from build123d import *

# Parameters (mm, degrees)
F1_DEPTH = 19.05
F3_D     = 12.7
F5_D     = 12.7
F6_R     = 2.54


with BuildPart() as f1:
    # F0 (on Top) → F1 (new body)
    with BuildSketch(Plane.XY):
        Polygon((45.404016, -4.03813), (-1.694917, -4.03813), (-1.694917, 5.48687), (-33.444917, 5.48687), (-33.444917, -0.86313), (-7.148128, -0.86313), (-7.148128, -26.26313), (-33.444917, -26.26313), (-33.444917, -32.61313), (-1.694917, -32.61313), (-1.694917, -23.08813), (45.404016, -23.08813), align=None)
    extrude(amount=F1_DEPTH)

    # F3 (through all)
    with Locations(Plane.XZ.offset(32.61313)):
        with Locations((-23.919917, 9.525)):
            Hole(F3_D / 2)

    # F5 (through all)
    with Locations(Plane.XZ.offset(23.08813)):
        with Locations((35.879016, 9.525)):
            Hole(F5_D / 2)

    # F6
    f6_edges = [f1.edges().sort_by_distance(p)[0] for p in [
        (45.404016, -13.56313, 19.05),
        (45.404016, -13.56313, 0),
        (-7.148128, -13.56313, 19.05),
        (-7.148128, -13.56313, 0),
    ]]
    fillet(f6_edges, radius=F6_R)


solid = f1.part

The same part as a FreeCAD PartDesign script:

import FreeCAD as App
import Part
import Sketcher

V = App.Vector
Q = App.Units.Quantity


def edges_at(feature, points):
    """Names of the edges that pass closest to the given points."""
    edges = feature.Shape.Edges
    near = lambda p: min(range(len(edges)), key=lambda i: edges[i].distToShape(Part.Vertex(*p))[0])
    return sorted({f"Edge{near(p) + 1}" for p in points})

doc = App.newDocument("Part")
body = doc.addObject("PartDesign::Body", "Body")

# Sketch on XY plane
sketch1 = doc.addObject("Sketcher::SketchObject", "Sketch")
body.addObject(sketch1)
sketch1.AttachmentSupport = (doc.XY_Plane, [""])
sketch1.MapMode = "FlatFace"
sketch1.addGeometry(Part.LineSegment(V(45, -4, 0), V(-2, -4, 0)), False)
sketch1.addGeometry(Part.LineSegment(V(-2, -4, 0), V(-2, 5, 0)), False)
sketch1.addGeometry(Part.LineSegment(V(-2, 5, 0), V(-33, 5, 0)), False)
sketch1.addGeometry(Part.LineSegment(V(-33, 5, 0), V(-33, -1, 0)), False)
sketch1.addGeometry(Part.LineSegment(V(-33, -1, 0), V(-7, -1, 0)), False)
sketch1.addGeometry(Part.LineSegment(V(-7, -1, 0), V(-7, -26, 0)), False)
sketch1.addGeometry(Part.LineSegment(V(-7, -26, 0), V(-33, -26, 0)), False)
sketch1.addGeometry(Part.LineSegment(V(-33, -26, 0), V(-33, -33, 0)), False)
sketch1.addGeometry(Part.LineSegment(V(-33, -33, 0), V(-2, -33, 0)), False)
sketch1.addGeometry(Part.LineSegment(V(-2, -33, 0), V(-2, -23, 0)), False)
sketch1.addGeometry(Part.LineSegment(V(-2, -23, 0), V(45, -23, 0)), False)
sketch1.addGeometry(Part.LineSegment(V(45, -23, 0), V(45, -4, 0)), False)
sketch1.addConstraint(Sketcher.Constraint("Coincident", 0, 2, 1, 1))
sketch1.addConstraint(Sketcher.Constraint("Coincident", 1, 2, 2, 1))
sketch1.addConstraint(Sketcher.Constraint("Coincident", 2, 2, 3, 1))
sketch1.addConstraint(Sketcher.Constraint("Coincident", 3, 2, 4, 1))
sketch1.addConstraint(Sketcher.Constraint("Coincident", 4, 2, 5, 1))
sketch1.addConstraint(Sketcher.Constraint("Coincident", 5, 2, 6, 1))
sketch1.addConstraint(Sketcher.Constraint("Coincident", 6, 2, 7, 1))
sketch1.addConstraint(Sketcher.Constraint("Coincident", 7, 2, 8, 1))
sketch1.addConstraint(Sketcher.Constraint("Coincident", 8, 2, 9, 1))
sketch1.addConstraint(Sketcher.Constraint("Coincident", 9, 2, 10, 1))
sketch1.addConstraint(Sketcher.Constraint("Coincident", 10, 2, 11, 1))
sketch1.addConstraint(Sketcher.Constraint("Coincident", 11, 2, 0, 1))
sketch1.addConstraint(Sketcher.Constraint("Horizontal", 0))
sketch1.addConstraint(Sketcher.Constraint("Vertical", 1))
sketch1.addConstraint(Sketcher.Constraint("Horizontal", 2))
sketch1.addConstraint(Sketcher.Constraint("Vertical", 3))
sketch1.addConstraint(Sketcher.Constraint("Horizontal", 4))
sketch1.addConstraint(Sketcher.Constraint("Vertical", 5))
sketch1.addConstraint(Sketcher.Constraint("Horizontal", 6))
sketch1.addConstraint(Sketcher.Constraint("Vertical", 7))
sketch1.addConstraint(Sketcher.Constraint("Horizontal", 8))
sketch1.addConstraint(Sketcher.Constraint("Vertical", 9))
sketch1.addConstraint(Sketcher.Constraint("Horizontal", 10))
sketch1.addConstraint(Sketcher.Constraint("Vertical", 11))
sketch1.addConstraint(Sketcher.Constraint("Vertical", 3, 2, 6, 2))
sketch1.addConstraint(Sketcher.Constraint("Vertical", 1, 2, 8, 2))
sketch1.addConstraint(Sketcher.Constraint("Equal", 3, 7))
sketch1.addConstraint(Sketcher.Constraint("Equal", 1, 9))
sketch1.addConstraint(Sketcher.Constraint("DistanceY", 5, 2, 5, 1, Q("1 in")))
sketch1.addConstraint(Sketcher.Constraint("DistanceX", 2, 2, 2, 1, Q("1.25 in")))
sketch1.addConstraint(Sketcher.Constraint("DistanceY", 3, 2, 3, 1, Q("0.25 in")))
sketch1.addConstraint(Sketcher.Constraint("DistanceY", 11, 1, 11, 2, Q("0.75 in")))
sketch1.addConstraint(Sketcher.Constraint("DistanceX", 4, 1, 4, 2, 26.296789))
sketch1.addConstraint(Sketcher.Constraint("DistanceX", 0, 2, 0, 1, 47.098933))
sketch1.addConstraint(Sketcher.Constraint("DistanceY", 0, 2, -1, 1, 4.03813))
sketch1.addConstraint(Sketcher.Constraint("DistanceX", 0, 2, -1, 1, 1.694917))
pad1 = doc.addObject("PartDesign::Pad", "Pad")
body.addObject(pad1)
pad1.Profile = sketch1
pad1.Length = Q("0.75 in")

# Sketch on XZ plane
sketch2 = doc.addObject("Sketcher::SketchObject", "Sketch001")
body.addObject(sketch2)
sketch2.AttachmentSupport = (doc.XZ_Plane, [""])
sketch2.MapMode = "FlatFace"
sketch2.AttachmentOffset = App.Placement(V(0, 0, 32.61313), App.Rotation())
sketch2.addGeometry(Part.Circle(V(-24, 10, 0), V(0, 0, 1), 6), False)
sketch2.addConstraint(Sketcher.Constraint("Diameter", 0, Q("0.5 in")))
sketch2.addConstraint(Sketcher.Constraint("DistanceY", -1, 1, 0, 3, Q("0.375 in")))
sketch2.addConstraint(Sketcher.Constraint("DistanceX", 0, 3, -1, 1, 23.919917))
doc.recompute()
hole = doc.addObject("PartDesign::Hole", "Hole")
body.addObject(hole)
hole.Profile = sketch2
hole.ThreadType = "None"
hole.Diameter = Q("0.5 in")
hole.DepthType = "ThroughAll"

# Sketch on XZ plane
sketch3 = doc.addObject("Sketcher::SketchObject", "Sketch002")
body.addObject(sketch3)
sketch3.AttachmentSupport = (doc.XZ_Plane, [""])
sketch3.MapMode = "FlatFace"
sketch3.AttachmentOffset = App.Placement(V(0, 0, 23.08813), App.Rotation())
sketch3.addGeometry(Part.Circle(V(36, 10, 0), V(0, 0, 1), 6), False)
sketch3.addConstraint(Sketcher.Constraint("Diameter", 0, Q("0.5 in")))
sketch3.addConstraint(Sketcher.Constraint("DistanceY", -1, 1, 0, 3, Q("0.375 in")))
sketch3.addConstraint(Sketcher.Constraint("DistanceX", -1, 1, 0, 3, 35.879016))
doc.recompute()
hole2 = doc.addObject("PartDesign::Hole", "Hole001")
body.addObject(hole2)
hole2.Profile = sketch3
hole2.ThreadType = "None"
hole2.Diameter = Q("0.5 in")
hole2.DepthType = "ThroughAll"
doc.recompute()

fillet = doc.addObject("PartDesign::Fillet", "Fillet")
body.addObject(fillet)
fillet.Base = (hole2, edges_at(hole2, [
    (45.404, -13.563, 19.05),
    (45.404, -13.563, 0),
    (-7.148, -13.563, 19.05),
    (-7.148, -13.563, 0),
]))
fillet.Radius = Q("0.1 in")

doc.recompute()
